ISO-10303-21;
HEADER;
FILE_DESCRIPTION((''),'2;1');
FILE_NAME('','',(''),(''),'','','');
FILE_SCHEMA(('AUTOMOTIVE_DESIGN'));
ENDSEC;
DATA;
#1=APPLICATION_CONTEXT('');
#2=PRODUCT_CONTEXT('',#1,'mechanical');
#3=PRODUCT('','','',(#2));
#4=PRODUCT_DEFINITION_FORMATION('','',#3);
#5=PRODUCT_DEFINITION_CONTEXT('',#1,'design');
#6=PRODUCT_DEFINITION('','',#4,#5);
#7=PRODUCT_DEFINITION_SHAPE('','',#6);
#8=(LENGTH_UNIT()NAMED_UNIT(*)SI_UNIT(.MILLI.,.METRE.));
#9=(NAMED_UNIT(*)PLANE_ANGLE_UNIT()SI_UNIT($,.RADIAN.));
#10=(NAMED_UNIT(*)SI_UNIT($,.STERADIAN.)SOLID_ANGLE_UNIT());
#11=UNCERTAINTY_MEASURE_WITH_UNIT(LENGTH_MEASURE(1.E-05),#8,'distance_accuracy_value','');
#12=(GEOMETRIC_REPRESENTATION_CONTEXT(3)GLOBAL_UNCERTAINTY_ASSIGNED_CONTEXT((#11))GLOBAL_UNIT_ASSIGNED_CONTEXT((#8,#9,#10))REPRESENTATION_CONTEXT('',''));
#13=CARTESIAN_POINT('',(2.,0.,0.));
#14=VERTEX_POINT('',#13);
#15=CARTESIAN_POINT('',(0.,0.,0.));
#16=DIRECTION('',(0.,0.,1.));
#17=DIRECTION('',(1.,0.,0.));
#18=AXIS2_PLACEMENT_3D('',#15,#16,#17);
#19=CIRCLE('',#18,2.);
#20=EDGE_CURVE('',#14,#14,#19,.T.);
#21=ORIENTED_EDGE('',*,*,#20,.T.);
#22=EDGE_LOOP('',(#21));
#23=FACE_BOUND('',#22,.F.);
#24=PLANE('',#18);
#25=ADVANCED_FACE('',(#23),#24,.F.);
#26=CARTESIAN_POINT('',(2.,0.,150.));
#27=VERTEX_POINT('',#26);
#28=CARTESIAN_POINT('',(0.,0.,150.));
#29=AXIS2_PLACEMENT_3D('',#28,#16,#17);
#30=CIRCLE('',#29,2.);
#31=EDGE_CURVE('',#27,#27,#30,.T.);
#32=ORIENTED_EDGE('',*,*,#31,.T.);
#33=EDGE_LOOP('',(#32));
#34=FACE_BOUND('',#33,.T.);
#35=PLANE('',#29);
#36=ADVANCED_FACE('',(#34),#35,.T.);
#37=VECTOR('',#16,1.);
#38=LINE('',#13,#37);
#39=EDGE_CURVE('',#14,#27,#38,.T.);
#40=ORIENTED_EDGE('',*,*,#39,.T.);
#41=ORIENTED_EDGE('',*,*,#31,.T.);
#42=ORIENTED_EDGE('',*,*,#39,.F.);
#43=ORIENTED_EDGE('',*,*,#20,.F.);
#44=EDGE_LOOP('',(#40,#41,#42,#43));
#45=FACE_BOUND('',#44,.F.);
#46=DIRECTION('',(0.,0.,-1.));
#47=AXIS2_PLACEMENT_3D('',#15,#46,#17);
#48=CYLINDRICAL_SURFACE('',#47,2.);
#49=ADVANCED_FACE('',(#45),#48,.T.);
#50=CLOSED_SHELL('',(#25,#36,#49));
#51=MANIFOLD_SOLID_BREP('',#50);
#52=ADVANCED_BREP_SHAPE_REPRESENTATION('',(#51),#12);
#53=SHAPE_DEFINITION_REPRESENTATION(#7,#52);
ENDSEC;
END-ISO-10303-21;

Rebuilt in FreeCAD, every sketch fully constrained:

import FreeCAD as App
import Part
import Sketcher
from FreeCAD import Vector
Q = App.Units.Quantity

doc = App.newDocument("Part")
body = doc.addObject("PartDesign::Body", "Body")

# Sketch on XY plane
sketch1 = body.newObject("Sketcher::SketchObject", "Sketch")
sketch1.AttachmentSupport = (doc.getObject("XY_Plane"), [""])
sketch1.MapMode = "FlatFace"
sketch1.addGeometry(Part.Circle(Vector(0, 0, 0), Vector(0, 0, 1), 2), False)
sketch1.addConstraint(Sketcher.Constraint("Coincident", 0, 3, -1, 1))
sketch1.addConstraint(Sketcher.Constraint("Diameter", 0, Q("4 mm")))
pad1 = body.newObject("PartDesign::Pad", "Pad")
pad1.Profile = sketch1
pad1.Length = 150

doc.recompute()
